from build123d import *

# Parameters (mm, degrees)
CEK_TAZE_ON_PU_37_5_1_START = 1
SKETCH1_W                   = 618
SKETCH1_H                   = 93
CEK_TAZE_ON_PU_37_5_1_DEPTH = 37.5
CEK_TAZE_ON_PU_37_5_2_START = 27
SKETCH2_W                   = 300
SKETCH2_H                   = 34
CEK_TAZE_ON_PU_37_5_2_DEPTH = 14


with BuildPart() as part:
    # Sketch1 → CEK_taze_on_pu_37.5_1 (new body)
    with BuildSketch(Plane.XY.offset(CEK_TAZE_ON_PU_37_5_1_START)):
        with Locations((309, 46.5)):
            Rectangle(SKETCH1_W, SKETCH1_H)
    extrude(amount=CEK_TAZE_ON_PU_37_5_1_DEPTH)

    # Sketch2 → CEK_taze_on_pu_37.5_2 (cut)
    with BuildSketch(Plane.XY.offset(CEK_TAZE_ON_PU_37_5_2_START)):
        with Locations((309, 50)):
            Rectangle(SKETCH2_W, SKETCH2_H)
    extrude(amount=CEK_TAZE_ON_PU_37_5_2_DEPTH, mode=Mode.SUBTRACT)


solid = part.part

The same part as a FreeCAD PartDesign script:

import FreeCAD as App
import Part
import Sketcher

V = App.Vector


def add_polygon(sketch, points):
    """Adds a closed chain of lines whose ends are joined by coincident constraints."""
    first, n = sketch.GeometryCount, len(points)
    for a, b in zip(points, points[1:] + points[:1]):
        sketch.addGeometry(Part.LineSegment(App.Vector(*a, 0), App.Vector(*b, 0)), False)
    for i in range(n):
        sketch.addConstraint(Sketcher.Constraint("Coincident", first + i, 2, first + (i + 1) % n, 1))

doc = App.newDocument("Part")
body = doc.addObject("PartDesign::Body", "Body")

# Sketch on XY plane
sketch1 = doc.addObject("Sketcher::SketchObject", "Sketch")
body.addObject(sketch1)
sketch1.AttachmentSupport = (doc.XY_Plane, [""])
sketch1.MapMode = "FlatFace"
sketch1.AttachmentOffset = App.Placement(V(0, 0, 1), App.Rotation())
add_polygon(sketch1, [(0, 93), (0, 0), (618, 0), (618, 93)])  # lines 0-3
sketch1.addConstraint([
    Sketcher.Constraint("Vertical", 0),
    Sketcher.Constraint("Horizontal", 1),
    Sketcher.Constraint("Vertical", 2),
    Sketcher.Constraint("Horizontal", 3),
    Sketcher.Constraint("Coincident", 0, 2, -1, 1),
    Sketcher.Constraint("DistanceX", 1, 1, 1, 2, 618.0),
    Sketcher.Constraint("DistanceY", 0, 2, 0, 1, 93.0),
])
pad1 = doc.addObject("PartDesign::Pad", "Pad")
body.addObject(pad1)
pad1.Profile = sketch1
pad1.Length = 37.5

# Sketch on XY plane
sketch2 = doc.addObject("Sketcher::SketchObject", "Sketch001")
body.addObject(sketch2)
sketch2.AttachmentSupport = (doc.XY_Plane, [""])
sketch2.MapMode = "FlatFace"
sketch2.AttachmentOffset = App.Placement(V(0, 0, 27), App.Rotation())
add_polygon(sketch2, [(159, 67), (159, 33), (459, 33), (459, 67)])  # lines 0-3
sketch2.addConstraint([
    Sketcher.Constraint("Vertical", 0),
    Sketcher.Constraint("Horizontal", 1),
    Sketcher.Constraint("Vertical", 2),
    Sketcher.Constraint("Horizontal", 3),
    Sketcher.Constraint("DistanceX", 1, 1, 1, 2, 300.0),
    Sketcher.Constraint("DistanceY", 0, 2, 0, 1, 34.0),
    Sketcher.Constraint("DistanceX", -1, 1, 0, 2, 159.0),
    Sketcher.Constraint("DistanceY", -1, 1, 0, 2, 33.0),
])
pocket1 = doc.addObject("PartDesign::Pocket", "Pocket")
body.addObject(pocket1)
pocket1.Profile = sketch2
pocket1.Length = 14
pocket1.Reversed = True

doc.recompute()
